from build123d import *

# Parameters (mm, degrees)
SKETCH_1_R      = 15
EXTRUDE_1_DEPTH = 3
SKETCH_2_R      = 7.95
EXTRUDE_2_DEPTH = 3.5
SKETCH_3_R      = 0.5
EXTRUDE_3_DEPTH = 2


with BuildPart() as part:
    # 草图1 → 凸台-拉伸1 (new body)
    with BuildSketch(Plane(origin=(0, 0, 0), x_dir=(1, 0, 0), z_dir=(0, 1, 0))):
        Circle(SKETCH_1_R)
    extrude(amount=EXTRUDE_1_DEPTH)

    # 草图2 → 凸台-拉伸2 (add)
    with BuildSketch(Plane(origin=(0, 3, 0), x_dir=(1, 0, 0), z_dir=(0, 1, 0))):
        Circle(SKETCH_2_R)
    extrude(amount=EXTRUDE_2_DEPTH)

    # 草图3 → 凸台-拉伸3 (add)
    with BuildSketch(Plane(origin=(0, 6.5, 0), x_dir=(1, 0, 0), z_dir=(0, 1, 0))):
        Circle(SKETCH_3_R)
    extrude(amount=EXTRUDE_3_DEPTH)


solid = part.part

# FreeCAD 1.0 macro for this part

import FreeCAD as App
import Part
import Sketcher
from FreeCAD import Vector
Q = App.Units.Quantity

doc = App.newDocument("Part")
body = doc.addObject("PartDesign::Body", "Body")

# Sketch on XZ plane
sketch1 = body.newObject("Sketcher::SketchObject", "Sketch")
sketch1.AttachmentSupport = (doc.getObject("XZ_Plane"), [""])
sketch1.MapMode = "FlatFace"
sketch1.addGeometry(Part.Circle(Vector(0, 0, 0), Vector(0, 0, 1), 15), False)
sketch1.addConstraint(Sketcher.Constraint("Coincident", 0, 3, -1, 1))
sketch1.addConstraint(Sketcher.Constraint("Diameter", 0, Q("30 mm")))
pad1 = body.newObject("PartDesign::Pad", "Pad")
pad1.Profile = sketch1
pad1.Length = 3
pad1.Reversed = True

# Sketch on XZ plane
sketch2 = body.newObject("Sketcher::SketchObject", "Sketch001")
sketch2.AttachmentSupport = (doc.getObject("XZ_Plane"), [""])
sketch2.MapMode = "FlatFace"
sketch2.AttachmentOffset = App.Placement(Vector(0, 0, -3), App.Rotation())
sketch2.addGeometry(Part.Circle(Vector(0, 0, 0), Vector(0, 0, 1), 8), False)
sketch2.addConstraint(Sketcher.Constraint("Coincident", 0, 3, -1, 1))
sketch2.addConstraint(Sketcher.Constraint("Diameter", 0, Q("15.9 mm")))
pad2 = body.newObject("PartDesign::Pad", "Pad001")
pad2.Profile = sketch2
pad2.Length = 3.5
pad2.Reversed = True

# Sketch on XZ plane
sketch3 = body.newObject("Sketcher::SketchObject", "Sketch002")
sketch3.AttachmentSupport = (doc.getObject("XZ_Plane"), [""])
sketch3.MapMode = "FlatFace"
sketch3.AttachmentOffset = App.Placement(Vector(0, 0, -6.5), App.Rotation())
sketch3.addGeometry(Part.Circle(Vector(0, 0, 0), Vector(0, 0, 1), 0.5), False)
sketch3.addConstraint(Sketcher.Constraint("Coincident", 0, 3, -1, 1))
sketch3.addConstraint(Sketcher.Constraint("Diameter", 0, Q("1 mm")))
pad3 = body.newObject("PartDesign::Pad", "Pad002")
pad3.Profile = sketch3
pad3.Length = 2
pad3.Reversed = True

doc.recompute()
